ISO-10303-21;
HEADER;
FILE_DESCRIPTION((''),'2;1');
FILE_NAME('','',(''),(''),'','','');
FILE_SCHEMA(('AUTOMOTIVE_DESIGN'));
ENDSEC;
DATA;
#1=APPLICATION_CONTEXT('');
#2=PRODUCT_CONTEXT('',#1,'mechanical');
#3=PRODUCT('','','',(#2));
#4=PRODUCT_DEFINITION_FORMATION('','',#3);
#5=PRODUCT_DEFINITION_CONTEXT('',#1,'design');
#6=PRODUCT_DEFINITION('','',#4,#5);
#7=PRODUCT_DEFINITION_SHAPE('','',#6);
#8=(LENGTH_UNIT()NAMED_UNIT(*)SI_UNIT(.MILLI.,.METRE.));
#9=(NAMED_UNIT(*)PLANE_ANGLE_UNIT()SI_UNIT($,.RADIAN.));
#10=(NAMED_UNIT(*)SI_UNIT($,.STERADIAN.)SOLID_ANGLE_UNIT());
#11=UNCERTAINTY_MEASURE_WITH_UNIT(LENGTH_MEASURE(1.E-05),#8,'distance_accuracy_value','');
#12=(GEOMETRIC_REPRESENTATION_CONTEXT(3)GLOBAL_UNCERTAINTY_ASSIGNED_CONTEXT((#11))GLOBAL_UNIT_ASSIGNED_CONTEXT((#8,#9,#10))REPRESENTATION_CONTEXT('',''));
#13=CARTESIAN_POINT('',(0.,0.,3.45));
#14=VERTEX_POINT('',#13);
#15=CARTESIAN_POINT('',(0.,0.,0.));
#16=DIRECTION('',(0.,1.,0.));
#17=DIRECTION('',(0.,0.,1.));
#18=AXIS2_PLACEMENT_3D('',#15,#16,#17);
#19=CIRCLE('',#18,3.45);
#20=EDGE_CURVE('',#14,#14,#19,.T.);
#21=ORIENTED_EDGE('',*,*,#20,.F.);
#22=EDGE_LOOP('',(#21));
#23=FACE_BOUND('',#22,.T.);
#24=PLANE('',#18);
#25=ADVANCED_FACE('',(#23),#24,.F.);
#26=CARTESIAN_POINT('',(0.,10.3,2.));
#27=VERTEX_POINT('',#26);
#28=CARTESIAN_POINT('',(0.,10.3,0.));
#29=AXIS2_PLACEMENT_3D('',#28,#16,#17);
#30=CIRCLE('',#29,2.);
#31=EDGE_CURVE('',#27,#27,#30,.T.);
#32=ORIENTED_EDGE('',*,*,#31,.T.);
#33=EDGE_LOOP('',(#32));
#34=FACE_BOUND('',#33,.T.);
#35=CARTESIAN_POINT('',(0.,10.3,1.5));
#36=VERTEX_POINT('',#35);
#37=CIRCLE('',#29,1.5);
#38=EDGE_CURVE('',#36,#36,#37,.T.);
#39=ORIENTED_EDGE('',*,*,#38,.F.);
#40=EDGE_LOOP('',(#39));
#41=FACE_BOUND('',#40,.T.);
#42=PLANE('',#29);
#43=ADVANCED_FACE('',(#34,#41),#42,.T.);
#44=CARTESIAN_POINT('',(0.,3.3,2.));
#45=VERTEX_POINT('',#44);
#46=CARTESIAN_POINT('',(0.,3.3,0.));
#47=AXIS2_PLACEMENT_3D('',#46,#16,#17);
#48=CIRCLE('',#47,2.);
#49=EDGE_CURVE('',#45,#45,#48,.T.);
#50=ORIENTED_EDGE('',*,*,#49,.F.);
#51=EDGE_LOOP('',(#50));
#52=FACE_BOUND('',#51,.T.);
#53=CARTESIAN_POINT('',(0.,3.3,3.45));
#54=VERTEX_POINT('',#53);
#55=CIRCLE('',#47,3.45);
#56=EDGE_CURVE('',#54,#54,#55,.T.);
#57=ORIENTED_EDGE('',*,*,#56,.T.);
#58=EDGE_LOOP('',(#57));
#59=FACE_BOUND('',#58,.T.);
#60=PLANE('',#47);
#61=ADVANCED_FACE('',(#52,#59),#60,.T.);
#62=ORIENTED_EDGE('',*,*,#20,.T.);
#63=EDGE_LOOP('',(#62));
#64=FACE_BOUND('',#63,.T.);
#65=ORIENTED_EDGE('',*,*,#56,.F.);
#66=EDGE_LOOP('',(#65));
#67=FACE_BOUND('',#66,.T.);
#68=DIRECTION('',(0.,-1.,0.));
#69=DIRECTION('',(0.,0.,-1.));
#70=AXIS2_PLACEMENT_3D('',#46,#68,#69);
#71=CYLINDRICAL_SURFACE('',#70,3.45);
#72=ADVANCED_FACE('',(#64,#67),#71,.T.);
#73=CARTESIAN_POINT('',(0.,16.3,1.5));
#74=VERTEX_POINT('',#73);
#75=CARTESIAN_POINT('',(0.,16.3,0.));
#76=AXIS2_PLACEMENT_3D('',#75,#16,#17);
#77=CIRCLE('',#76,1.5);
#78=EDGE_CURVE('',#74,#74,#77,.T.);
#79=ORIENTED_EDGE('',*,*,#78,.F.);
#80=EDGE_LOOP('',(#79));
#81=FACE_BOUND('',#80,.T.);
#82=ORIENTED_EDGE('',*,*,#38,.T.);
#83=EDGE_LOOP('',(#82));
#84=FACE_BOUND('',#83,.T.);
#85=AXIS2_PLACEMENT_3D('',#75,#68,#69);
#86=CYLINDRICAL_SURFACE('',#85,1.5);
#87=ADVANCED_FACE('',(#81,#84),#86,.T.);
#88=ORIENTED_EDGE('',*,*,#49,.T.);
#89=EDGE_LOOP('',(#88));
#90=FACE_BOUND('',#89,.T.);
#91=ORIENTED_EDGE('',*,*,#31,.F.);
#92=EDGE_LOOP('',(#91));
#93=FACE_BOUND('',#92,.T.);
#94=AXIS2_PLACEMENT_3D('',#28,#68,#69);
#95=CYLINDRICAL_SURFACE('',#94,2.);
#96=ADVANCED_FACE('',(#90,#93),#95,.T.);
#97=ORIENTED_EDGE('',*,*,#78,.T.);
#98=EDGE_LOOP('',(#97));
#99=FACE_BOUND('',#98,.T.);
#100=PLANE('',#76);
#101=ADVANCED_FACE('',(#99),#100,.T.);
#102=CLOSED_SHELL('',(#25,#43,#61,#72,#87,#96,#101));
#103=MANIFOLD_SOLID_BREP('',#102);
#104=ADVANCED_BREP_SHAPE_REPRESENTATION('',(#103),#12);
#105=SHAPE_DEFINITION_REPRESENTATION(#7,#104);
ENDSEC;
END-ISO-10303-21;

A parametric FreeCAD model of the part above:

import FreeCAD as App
import Part
import Sketcher

V = App.Vector
Q = App.Units.Quantity

doc = App.newDocument("Part")
body = doc.addObject("PartDesign::Body", "Body")

# Sketch on XZ plane
sketch1 = body.newObject("Sketcher::SketchObject", "Sketch")
sketch1.AttachmentSupport = (doc.getObject("XZ_Plane"), [""])
sketch1.MapMode = "FlatFace"
sketch1.addGeometry(Part.Circle(V(0, 0, 0), V(0, 0, 1), 3.5), False)
sketch1.addConstraint(Sketcher.Constraint("Coincident", 0, 3, -1, 1))
sketch1.addConstraint(Sketcher.Constraint("Diameter", 0, Q("6.9 mm")))
pad1 = body.newObject("PartDesign::Pad", "Pad")
pad1.Profile = sketch1
pad1.Length = 3.3
pad1.Reversed = True

# Sketch on XZ plane
sketch2 = body.newObject("Sketcher::SketchObject", "Sketch001")
sketch2.AttachmentSupport = (doc.getObject("XZ_Plane"), [""])
sketch2.MapMode = "FlatFace"
sketch2.AttachmentOffset = App.Placement(V(0, 0, -3.3), App.Rotation())
sketch2.addGeometry(Part.Circle(V(0, 0, 0), V(0, 0, 1), 2), False)
sketch2.addConstraint(Sketcher.Constraint("Coincident", 0, 3, -1, 1))
sketch2.addConstraint(Sketcher.Constraint("Diameter", 0, Q("4 mm")))
pad2 = body.newObject("PartDesign::Pad", "Pad001")
pad2.Profile = sketch2
pad2.Length = 7
pad2.Reversed = True

# Sketch on XZ plane
sketch3 = body.newObject("Sketcher::SketchObject", "Sketch002")
sketch3.AttachmentSupport = (doc.getObject("XZ_Plane"), [""])
sketch3.MapMode = "FlatFace"
sketch3.AttachmentOffset = App.Placement(V(0, 0, -10.3), App.Rotation())
sketch3.addGeometry(Part.Circle(V(0, 0, 0), V(0, 0, 1), 1.5), False)
sketch3.addConstraint(Sketcher.Constraint("Coincident", 0, 3, -1, 1))
sketch3.addConstraint(Sketcher.Constraint("Diameter", 0, Q("3 mm")))
pad3 = body.newObject("PartDesign::Pad", "Pad002")
pad3.Profile = sketch3
pad3.Length = 6
pad3.Reversed = True

doc.recompute()
